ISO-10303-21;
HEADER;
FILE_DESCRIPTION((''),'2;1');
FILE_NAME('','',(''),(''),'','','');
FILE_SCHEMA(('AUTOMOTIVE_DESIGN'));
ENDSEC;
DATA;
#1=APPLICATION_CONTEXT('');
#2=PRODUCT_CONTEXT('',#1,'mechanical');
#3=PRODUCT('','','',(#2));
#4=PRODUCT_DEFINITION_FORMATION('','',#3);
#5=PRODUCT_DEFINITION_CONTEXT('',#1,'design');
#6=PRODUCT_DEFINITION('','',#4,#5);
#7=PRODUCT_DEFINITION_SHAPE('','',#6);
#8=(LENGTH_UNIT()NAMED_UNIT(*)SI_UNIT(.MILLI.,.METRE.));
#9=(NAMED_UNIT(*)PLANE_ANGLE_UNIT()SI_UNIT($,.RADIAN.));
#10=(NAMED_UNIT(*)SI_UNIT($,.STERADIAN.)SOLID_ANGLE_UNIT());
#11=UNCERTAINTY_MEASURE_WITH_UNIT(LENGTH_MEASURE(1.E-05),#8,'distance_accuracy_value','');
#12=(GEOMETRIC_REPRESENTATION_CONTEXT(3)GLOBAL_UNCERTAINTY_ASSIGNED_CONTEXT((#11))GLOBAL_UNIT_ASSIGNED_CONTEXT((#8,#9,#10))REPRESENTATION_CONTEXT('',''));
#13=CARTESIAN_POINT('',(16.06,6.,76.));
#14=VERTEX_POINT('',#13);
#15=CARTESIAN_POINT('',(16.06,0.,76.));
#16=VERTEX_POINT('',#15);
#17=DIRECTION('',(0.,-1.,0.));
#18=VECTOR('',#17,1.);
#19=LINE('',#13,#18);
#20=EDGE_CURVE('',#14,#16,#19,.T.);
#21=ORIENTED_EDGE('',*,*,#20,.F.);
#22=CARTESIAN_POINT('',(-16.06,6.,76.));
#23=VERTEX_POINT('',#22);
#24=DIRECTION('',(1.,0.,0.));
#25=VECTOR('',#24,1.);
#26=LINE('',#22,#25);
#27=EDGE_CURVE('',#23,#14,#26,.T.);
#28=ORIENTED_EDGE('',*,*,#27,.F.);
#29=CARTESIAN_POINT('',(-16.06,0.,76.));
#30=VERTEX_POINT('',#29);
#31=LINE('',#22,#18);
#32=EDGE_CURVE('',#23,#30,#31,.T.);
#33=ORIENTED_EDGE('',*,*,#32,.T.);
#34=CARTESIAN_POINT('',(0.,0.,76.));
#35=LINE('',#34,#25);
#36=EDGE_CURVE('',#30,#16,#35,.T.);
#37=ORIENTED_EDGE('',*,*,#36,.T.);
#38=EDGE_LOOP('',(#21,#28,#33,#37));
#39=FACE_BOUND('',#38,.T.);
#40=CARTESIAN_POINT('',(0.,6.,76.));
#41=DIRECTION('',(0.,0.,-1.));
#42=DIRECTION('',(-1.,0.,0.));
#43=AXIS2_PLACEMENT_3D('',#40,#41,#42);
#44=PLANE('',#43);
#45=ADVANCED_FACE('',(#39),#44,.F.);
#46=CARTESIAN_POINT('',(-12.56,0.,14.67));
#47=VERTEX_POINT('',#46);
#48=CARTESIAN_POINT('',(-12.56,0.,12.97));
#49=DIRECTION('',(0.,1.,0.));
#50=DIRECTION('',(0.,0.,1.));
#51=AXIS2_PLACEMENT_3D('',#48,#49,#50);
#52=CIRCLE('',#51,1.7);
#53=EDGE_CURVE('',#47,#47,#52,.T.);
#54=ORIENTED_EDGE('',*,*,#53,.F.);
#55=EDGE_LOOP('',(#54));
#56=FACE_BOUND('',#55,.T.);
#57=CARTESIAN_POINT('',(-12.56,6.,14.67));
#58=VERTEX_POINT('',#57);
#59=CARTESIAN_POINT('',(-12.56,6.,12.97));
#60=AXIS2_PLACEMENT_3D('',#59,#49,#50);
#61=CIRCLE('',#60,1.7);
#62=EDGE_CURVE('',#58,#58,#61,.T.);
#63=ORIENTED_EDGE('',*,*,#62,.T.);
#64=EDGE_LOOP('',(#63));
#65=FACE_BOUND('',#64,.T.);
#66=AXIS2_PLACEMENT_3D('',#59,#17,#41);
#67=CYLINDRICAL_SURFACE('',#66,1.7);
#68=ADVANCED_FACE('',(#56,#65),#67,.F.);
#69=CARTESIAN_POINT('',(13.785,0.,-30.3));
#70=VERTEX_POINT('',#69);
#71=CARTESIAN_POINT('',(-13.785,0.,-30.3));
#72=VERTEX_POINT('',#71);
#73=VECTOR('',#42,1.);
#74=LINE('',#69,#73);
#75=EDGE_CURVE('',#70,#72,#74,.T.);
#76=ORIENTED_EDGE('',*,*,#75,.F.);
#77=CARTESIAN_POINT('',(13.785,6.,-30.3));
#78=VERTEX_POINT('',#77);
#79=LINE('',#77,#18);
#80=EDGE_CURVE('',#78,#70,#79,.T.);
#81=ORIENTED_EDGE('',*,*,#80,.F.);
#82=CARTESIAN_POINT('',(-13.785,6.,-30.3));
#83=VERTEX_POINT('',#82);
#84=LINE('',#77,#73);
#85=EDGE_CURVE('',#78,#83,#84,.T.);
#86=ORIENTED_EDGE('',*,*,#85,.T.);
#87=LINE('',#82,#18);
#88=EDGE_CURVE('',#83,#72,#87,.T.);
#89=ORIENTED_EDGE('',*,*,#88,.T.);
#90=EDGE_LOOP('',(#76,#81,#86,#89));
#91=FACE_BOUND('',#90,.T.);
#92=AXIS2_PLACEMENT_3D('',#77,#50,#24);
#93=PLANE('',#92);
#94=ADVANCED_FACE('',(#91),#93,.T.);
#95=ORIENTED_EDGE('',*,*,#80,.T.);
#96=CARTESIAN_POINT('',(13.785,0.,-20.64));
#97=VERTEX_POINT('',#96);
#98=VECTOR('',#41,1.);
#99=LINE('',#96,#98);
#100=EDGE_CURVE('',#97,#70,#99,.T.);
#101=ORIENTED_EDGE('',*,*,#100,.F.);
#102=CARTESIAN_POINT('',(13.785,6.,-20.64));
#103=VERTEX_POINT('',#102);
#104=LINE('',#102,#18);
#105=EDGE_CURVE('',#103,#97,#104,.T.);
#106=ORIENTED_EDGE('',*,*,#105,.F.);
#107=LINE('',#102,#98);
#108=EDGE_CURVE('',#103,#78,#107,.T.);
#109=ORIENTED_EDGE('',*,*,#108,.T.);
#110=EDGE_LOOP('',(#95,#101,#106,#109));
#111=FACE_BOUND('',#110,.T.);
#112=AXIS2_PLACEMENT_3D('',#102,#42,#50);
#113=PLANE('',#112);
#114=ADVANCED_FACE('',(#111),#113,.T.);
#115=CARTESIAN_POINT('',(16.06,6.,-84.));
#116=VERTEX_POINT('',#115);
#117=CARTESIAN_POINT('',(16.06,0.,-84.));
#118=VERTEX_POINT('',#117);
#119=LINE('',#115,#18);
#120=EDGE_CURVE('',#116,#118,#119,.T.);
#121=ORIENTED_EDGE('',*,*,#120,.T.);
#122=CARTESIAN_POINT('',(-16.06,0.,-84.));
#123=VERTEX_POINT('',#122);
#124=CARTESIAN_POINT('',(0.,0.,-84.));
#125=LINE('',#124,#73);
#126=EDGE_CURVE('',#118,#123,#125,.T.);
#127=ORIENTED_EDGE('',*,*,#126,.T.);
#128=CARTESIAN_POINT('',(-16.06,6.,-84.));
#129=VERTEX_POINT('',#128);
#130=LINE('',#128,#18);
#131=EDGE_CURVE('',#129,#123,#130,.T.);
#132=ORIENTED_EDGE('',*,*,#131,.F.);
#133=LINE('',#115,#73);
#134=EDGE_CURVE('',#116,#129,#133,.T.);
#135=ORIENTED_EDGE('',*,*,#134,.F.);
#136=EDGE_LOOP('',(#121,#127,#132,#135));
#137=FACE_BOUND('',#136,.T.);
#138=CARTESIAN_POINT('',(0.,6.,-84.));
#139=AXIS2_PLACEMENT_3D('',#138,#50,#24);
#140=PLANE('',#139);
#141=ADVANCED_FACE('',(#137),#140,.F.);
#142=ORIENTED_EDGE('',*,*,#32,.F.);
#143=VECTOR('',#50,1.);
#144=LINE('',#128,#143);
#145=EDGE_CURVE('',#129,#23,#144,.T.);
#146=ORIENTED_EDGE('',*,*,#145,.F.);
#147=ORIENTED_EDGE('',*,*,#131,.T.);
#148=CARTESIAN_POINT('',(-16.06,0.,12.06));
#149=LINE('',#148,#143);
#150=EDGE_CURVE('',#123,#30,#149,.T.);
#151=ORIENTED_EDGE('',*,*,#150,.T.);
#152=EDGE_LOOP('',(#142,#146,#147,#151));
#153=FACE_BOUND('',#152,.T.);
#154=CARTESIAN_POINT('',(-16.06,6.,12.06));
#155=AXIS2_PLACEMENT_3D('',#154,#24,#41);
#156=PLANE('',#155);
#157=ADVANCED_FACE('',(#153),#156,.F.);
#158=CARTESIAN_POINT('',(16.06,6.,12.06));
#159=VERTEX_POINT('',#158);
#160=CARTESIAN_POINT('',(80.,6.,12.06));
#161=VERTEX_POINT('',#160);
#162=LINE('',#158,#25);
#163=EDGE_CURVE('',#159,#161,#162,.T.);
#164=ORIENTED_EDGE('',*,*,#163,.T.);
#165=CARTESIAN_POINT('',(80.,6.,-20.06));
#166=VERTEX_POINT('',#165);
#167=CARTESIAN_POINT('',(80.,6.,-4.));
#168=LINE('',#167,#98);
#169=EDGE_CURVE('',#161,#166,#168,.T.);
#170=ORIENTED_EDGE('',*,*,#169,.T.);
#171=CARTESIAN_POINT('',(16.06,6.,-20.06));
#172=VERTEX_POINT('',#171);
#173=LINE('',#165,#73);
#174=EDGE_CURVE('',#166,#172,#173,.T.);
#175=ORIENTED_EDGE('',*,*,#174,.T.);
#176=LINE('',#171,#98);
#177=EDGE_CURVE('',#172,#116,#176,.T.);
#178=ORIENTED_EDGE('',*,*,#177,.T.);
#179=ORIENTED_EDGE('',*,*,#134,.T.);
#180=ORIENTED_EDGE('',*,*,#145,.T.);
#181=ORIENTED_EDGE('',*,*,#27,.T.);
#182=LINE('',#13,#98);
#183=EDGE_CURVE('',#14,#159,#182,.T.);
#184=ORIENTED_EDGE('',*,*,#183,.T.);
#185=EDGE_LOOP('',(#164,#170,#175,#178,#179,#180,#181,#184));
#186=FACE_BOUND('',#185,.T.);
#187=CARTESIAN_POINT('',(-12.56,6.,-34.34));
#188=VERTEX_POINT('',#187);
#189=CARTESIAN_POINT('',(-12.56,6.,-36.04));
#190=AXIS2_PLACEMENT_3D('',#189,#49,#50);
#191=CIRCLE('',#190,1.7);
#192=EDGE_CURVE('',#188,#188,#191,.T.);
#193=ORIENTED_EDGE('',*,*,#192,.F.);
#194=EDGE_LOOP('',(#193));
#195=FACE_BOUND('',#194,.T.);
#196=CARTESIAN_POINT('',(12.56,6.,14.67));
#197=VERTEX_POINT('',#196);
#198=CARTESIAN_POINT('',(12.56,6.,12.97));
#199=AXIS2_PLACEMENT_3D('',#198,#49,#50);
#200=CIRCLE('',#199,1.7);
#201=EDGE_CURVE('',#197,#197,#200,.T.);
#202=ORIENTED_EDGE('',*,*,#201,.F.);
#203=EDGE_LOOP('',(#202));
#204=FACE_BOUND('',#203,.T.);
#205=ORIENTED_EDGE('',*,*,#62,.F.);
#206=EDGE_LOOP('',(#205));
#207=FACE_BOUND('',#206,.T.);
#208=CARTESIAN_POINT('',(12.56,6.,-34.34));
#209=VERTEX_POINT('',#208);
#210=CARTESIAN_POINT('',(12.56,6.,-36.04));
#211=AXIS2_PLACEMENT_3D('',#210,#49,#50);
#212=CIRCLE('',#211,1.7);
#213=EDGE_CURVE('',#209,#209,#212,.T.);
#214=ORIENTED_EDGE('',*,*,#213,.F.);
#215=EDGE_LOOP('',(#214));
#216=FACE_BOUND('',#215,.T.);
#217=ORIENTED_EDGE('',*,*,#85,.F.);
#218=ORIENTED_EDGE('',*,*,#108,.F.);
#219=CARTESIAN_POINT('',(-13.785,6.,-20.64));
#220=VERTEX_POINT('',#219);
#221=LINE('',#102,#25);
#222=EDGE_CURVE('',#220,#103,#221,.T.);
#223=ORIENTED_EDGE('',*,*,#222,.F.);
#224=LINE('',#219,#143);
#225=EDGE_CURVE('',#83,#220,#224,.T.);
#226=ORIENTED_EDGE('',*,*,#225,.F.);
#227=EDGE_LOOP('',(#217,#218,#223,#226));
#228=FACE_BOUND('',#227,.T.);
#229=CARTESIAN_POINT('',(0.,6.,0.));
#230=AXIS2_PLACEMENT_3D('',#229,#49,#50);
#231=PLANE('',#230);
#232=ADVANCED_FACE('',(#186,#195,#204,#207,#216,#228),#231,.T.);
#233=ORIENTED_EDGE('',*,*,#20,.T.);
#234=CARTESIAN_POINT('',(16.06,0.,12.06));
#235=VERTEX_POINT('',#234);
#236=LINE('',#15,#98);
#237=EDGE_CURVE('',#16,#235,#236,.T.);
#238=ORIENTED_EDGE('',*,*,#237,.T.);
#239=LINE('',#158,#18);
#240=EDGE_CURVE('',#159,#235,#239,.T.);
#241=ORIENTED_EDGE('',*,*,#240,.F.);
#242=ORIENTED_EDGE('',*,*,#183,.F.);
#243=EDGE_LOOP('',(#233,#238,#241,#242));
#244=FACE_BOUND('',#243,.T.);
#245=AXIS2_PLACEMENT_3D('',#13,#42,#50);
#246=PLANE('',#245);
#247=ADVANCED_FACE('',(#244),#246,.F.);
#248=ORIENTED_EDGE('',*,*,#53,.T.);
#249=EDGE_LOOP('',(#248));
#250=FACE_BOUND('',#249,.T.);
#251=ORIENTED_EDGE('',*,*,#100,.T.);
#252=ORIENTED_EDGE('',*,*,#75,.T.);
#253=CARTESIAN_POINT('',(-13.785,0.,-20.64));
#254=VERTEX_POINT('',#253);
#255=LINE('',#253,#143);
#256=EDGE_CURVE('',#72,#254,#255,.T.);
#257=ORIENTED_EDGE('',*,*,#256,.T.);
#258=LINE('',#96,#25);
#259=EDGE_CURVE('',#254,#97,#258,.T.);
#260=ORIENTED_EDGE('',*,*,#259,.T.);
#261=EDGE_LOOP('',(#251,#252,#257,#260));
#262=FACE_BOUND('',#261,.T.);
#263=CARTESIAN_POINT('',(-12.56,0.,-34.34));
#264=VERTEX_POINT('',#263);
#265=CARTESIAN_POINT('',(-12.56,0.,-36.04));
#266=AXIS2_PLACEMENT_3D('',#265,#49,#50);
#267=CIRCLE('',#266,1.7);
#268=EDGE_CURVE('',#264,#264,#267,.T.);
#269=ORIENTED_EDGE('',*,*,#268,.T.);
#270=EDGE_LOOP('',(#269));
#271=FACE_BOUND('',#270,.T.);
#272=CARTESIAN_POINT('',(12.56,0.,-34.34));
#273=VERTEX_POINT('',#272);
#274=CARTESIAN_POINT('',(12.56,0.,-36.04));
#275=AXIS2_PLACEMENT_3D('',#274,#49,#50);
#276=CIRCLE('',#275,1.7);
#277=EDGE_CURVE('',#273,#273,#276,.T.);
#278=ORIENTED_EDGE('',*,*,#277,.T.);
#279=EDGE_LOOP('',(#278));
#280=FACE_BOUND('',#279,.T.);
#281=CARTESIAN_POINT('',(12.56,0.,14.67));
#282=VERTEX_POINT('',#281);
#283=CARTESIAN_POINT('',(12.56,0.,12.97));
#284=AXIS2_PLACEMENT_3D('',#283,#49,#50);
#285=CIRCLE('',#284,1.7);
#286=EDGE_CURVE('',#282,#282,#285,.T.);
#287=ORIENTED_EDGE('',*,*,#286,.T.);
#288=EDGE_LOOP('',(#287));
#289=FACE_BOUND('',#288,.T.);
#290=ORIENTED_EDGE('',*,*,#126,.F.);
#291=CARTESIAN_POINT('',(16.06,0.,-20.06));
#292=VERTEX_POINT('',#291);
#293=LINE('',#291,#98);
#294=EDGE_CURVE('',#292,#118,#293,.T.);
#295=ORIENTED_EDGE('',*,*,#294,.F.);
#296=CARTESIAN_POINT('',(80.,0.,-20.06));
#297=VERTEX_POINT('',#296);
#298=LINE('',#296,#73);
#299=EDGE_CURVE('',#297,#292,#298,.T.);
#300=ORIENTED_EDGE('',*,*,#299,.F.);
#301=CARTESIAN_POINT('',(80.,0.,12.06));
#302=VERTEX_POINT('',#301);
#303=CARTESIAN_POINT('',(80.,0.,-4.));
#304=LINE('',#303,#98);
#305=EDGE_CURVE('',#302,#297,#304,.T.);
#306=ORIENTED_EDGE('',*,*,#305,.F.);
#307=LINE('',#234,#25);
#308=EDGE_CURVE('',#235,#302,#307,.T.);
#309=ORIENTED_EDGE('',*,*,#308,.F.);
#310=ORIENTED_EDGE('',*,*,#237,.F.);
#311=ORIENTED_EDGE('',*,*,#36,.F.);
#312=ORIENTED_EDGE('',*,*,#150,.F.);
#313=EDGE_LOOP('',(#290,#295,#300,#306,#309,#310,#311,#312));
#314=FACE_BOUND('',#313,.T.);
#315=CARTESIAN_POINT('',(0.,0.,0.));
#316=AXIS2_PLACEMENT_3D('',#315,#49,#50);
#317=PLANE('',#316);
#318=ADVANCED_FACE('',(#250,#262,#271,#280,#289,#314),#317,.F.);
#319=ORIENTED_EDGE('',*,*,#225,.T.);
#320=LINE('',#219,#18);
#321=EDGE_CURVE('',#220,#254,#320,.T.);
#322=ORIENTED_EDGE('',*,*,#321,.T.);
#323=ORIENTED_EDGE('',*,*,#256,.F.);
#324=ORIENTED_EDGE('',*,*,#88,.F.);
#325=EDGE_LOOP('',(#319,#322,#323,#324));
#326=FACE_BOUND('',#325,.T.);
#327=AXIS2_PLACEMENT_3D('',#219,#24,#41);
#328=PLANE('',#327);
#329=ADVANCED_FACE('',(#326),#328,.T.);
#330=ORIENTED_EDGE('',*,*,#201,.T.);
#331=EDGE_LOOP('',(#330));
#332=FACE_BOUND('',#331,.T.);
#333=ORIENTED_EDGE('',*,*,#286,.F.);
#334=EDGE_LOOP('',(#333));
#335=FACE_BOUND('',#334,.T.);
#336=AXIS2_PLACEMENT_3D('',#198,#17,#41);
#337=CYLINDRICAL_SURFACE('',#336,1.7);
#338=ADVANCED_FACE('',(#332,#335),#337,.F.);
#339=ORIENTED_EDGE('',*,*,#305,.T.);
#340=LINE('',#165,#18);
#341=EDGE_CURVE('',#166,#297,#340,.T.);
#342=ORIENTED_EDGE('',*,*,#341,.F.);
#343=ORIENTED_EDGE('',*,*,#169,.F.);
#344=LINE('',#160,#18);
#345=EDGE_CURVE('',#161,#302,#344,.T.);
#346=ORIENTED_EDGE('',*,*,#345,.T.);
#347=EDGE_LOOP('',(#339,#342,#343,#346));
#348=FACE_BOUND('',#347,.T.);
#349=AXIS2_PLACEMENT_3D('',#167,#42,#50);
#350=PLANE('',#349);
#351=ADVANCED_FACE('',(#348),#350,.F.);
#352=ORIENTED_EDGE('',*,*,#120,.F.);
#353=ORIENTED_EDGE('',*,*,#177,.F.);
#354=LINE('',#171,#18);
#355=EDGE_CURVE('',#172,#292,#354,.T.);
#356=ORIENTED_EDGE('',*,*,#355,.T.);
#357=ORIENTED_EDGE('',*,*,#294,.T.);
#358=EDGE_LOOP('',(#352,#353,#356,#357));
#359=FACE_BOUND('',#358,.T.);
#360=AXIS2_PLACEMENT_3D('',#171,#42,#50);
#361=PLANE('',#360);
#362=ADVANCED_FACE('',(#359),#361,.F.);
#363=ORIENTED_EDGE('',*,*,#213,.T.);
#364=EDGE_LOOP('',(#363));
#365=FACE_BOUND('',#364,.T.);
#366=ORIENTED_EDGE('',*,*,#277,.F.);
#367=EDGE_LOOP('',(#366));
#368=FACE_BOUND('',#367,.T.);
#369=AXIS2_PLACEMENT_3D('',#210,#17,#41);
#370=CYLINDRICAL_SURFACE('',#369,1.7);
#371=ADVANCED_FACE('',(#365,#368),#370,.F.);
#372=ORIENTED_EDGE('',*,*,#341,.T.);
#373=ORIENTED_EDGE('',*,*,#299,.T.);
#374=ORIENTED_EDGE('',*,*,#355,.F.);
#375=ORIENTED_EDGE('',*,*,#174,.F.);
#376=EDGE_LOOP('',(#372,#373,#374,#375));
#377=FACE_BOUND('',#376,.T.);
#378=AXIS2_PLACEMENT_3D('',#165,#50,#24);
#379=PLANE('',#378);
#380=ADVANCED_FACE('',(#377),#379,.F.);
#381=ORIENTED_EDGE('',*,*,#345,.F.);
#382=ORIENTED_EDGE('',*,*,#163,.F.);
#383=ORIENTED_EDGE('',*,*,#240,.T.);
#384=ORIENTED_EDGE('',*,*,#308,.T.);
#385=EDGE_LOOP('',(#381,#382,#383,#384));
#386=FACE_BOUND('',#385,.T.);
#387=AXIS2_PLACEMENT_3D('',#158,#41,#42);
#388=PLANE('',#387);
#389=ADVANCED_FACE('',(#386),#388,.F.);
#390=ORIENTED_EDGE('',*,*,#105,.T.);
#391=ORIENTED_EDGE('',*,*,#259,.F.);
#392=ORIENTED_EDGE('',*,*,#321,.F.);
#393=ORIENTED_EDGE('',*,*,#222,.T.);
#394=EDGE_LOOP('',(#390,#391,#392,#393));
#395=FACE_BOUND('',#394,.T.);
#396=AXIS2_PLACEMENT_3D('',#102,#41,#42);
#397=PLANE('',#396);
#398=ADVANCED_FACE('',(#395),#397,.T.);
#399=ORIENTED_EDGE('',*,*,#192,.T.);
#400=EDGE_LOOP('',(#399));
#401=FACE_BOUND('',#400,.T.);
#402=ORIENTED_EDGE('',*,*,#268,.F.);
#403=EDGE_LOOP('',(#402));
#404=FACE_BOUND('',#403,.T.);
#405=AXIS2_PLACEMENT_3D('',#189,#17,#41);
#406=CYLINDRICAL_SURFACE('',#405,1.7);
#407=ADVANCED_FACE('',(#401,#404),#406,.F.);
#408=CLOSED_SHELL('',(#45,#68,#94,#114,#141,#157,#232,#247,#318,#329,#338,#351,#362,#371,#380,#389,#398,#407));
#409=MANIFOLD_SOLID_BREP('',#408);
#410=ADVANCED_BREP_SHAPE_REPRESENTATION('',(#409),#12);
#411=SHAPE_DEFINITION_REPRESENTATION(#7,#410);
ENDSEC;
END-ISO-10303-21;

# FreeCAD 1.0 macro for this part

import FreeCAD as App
import Part
import Sketcher

V = App.Vector
Q = App.Units.Quantity

doc = App.newDocument("Part")
body = doc.addObject("PartDesign::Body", "Body")

sketch1 = body.newObject("Sketcher::SketchObject", "Sketch")
sketch1.AttachmentSupport = (doc.getObject("XZ_Plane"), [""])
sketch1.MapMode = "FlatFace"
sketch1.addGeometry([
    Part.LineSegment(V(-16.06, -84, 0), V(-16.06, 76, 0)),
    Part.LineSegment(V(-16.06, 76, 0), V(16.06, 76, 0)),
    Part.LineSegment(V(16.06, 76, 0), V(16.06, 12.06, 0)),
    Part.LineSegment(V(16.06, 12.06, 0), V(80, 12.06, 0)),
    Part.LineSegment(V(80, 12.06, 0), V(80, -20.06, 0)),
    Part.LineSegment(V(80, -20.06, 0), V(16.06, -20.06, 0)),
    Part.LineSegment(V(16.06, -20.06, 0), V(16.06, -84, 0)),
    Part.LineSegment(V(16.06, -84, 0), V(-16.06, -84, 0)),
    Part.Circle(V(12.56, 12.97, 0), V(0, 0, 1), 1.7),
    Part.Circle(V(-12.56, 12.97, 0), V(0, 0, 1), 1.7),
    Part.Circle(V(12.56, -36.04, 0), V(0, 0, 1), 1.7),
    Part.LineSegment(V(-13.785, -20.64, 0), V(-13.785, -30.3, 0)),
    Part.LineSegment(V(-13.785, -30.3, 0), V(13.785, -30.3, 0)),
    Part.LineSegment(V(13.785, -30.3, 0), V(13.785, -20.64, 0)),
    Part.LineSegment(V(13.785, -20.64, 0), V(-13.785, -20.64, 0)),
    Part.Circle(V(-12.56, -36.04, 0), V(0, 0, 1), 1.7),
], False)
sketch1.addConstraint([
    Sketcher.Constraint("Coincident", 0, 2, 1, 1),
    Sketcher.Constraint("Coincident", 1, 2, 2, 1),
    Sketcher.Constraint("Coincident", 2, 2, 3, 1),
    Sketcher.Constraint("Coincident", 3, 2, 4, 1),
    Sketcher.Constraint("Coincident", 4, 2, 5, 1),
    Sketcher.Constraint("Coincident", 5, 2, 6, 1),
    Sketcher.Constraint("Coincident", 6, 2, 7, 1),
    Sketcher.Constraint("Coincident", 7, 2, 0, 1),
    Sketcher.Constraint("Coincident", 11, 2, 12, 1),
    Sketcher.Constraint("Coincident", 12, 2, 13, 1),
    Sketcher.Constraint("Coincident", 13, 2, 14, 1),
    Sketcher.Constraint("Coincident", 14, 2, 11, 1),
    Sketcher.Constraint("Vertical", 0),
    Sketcher.Constraint("Horizontal", 1),
    Sketcher.Constraint("Vertical", 2),
    Sketcher.Constraint("Horizontal", 3),
    Sketcher.Constraint("Vertical", 4),
    Sketcher.Constraint("Horizontal", 5),
    Sketcher.Constraint("Vertical", 6),
    Sketcher.Constraint("Horizontal", 7),
    Sketcher.Constraint("Vertical", 11),
    Sketcher.Constraint("Horizontal", 12),
    Sketcher.Constraint("Vertical", 13),
    Sketcher.Constraint("Horizontal", 14),
    Sketcher.Constraint("Equal", 8, 9),
    Sketcher.Constraint("Equal", 9, 10),
    Sketcher.Constraint("Equal", 10, 15),
    Sketcher.Constraint("Symmetric", 8, 3, 9, 3, -2),
    Sketcher.Constraint("Symmetric", 10, 3, 15, 3, -2),
    Sketcher.Constraint("Vertical", 8, 3, 10, 3),
    Sketcher.Constraint("Vertical", 2, 2, 5, 2),
    Sketcher.Constraint("Equal", 5, 2),
    Sketcher.Constraint("Equal", 7, 4),
    Sketcher.Constraint("Equal", 2, 6),
    Sketcher.Constraint("Diameter", 8, Q("3.4 mm")),
    Sketcher.Constraint("DistanceY", 0, 1, 0, 2, Q("160 mm")),
    Sketcher.Constraint("DistanceY", -1, 1, 0, 2, Q("76 mm")),
    Sketcher.Constraint("DistanceX", -1, 1, 3, 2, Q("80 mm")),
    Sketcher.Constraint("DistanceX", 1, 1, 1, 2, Q("32.12 mm")),
    Sketcher.Constraint("DistanceX", 12, 1, 12, 2, Q("27.57 mm")),
    Sketcher.Constraint("DistanceY", 11, 2, 11, 1, Q("9.66 mm")),
    Sketcher.Constraint("DistanceY", 11, 2, -1, 1, Q("30.3 mm")),
    Sketcher.Constraint("DistanceX", 0, 2, 9, 3, Q("3.5 mm")),
    Sketcher.Constraint("DistanceY", 10, 3, 2, 2, Q("48.1 mm")),
    Sketcher.Constraint("DistanceY", -1, 1, 8, 3, Q("12.97 mm")),
    Sketcher.Constraint("DistanceX", 11, 2, -1, 1, Q("13.785 mm")),
])
pad1 = body.newObject("PartDesign::Pad", "Pad")
pad1.Profile = sketch1
pad1.Length = 6
pad1.Reversed = True

doc.recompute()
